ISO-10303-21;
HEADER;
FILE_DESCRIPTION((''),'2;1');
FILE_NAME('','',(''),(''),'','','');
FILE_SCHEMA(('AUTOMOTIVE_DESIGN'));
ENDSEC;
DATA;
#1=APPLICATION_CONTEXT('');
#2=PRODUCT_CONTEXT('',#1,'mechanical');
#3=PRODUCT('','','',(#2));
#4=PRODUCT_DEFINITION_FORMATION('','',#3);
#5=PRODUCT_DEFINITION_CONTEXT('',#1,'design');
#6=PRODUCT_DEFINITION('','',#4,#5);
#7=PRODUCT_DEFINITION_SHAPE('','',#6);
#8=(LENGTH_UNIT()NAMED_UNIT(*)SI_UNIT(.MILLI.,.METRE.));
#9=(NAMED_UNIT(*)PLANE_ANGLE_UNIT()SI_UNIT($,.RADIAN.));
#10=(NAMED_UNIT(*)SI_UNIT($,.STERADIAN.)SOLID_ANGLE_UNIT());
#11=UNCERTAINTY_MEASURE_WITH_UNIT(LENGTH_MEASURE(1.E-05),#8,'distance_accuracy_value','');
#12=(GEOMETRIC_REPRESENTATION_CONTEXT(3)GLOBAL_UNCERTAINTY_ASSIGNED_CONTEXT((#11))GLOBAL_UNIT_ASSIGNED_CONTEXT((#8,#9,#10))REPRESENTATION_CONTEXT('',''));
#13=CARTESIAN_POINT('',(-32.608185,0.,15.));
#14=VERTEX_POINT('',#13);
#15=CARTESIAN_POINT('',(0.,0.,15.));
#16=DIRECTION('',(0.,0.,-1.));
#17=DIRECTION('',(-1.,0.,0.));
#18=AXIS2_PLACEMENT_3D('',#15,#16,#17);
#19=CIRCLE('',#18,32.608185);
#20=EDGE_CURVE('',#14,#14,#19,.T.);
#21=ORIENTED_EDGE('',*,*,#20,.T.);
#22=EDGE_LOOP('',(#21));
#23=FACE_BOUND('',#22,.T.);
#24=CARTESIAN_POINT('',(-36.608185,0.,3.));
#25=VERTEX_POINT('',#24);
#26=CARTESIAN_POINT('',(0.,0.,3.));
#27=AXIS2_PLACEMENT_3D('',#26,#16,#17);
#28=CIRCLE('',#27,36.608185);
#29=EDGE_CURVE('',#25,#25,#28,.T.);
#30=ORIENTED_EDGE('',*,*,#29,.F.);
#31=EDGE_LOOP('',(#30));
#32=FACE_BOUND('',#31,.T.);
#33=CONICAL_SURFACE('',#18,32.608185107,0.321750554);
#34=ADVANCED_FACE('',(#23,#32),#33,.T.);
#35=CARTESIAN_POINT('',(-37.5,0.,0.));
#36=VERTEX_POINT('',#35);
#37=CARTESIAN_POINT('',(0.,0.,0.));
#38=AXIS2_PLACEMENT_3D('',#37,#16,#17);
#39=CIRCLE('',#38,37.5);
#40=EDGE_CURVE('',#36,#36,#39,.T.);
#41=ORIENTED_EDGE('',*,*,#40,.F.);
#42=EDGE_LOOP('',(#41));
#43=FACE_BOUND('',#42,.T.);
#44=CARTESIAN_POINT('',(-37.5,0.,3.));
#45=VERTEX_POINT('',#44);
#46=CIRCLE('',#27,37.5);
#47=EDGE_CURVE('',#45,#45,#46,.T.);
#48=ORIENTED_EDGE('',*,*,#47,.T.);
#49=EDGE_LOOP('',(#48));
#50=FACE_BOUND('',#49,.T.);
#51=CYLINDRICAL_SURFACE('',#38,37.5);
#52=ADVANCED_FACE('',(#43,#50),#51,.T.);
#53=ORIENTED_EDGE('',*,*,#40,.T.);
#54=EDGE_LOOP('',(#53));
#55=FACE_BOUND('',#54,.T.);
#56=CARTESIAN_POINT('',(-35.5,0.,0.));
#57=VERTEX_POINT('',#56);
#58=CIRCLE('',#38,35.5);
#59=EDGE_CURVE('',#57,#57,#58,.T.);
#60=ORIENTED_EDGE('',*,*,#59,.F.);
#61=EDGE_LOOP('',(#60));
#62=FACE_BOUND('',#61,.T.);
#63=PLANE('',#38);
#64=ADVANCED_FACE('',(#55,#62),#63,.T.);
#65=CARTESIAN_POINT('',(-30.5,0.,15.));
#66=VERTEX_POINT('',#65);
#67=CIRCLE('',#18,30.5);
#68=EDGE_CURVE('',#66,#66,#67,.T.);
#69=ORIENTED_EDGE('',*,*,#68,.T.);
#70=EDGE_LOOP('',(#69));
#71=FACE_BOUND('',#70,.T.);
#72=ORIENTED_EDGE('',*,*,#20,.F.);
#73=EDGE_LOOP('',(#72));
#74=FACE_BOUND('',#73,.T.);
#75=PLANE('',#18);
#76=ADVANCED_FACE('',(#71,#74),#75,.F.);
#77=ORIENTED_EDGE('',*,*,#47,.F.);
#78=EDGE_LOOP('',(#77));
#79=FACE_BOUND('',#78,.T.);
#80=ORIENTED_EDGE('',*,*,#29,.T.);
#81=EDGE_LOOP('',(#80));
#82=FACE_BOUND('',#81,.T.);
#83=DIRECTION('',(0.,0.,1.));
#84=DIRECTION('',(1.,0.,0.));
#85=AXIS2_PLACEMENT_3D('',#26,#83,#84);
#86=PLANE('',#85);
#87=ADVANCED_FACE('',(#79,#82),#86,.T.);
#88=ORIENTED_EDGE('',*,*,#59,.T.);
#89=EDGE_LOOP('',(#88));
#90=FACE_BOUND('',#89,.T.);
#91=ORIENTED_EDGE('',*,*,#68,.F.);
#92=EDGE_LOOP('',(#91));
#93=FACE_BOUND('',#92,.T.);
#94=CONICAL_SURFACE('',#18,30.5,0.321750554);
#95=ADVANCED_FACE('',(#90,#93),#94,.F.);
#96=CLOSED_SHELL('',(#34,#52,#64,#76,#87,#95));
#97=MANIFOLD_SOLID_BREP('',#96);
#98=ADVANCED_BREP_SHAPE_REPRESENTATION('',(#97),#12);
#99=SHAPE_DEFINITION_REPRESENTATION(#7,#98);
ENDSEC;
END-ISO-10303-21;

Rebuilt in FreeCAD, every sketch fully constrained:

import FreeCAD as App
import Part
import Sketcher
Q = App.Units.Quantity


def add_polygon(sketch, points):
    """Adds a closed chain of lines whose ends are joined by coincident constraints."""
    first, n = sketch.GeometryCount, len(points)
    for a, b in zip(points, points[1:] + points[:1]):
        sketch.addGeometry(Part.LineSegment(App.Vector(*a, 0), App.Vector(*b, 0)), False)
    for i in range(n):
        sketch.addConstraint(Sketcher.Constraint("Coincident", first + i, 2, first + (i + 1) % n, 1))

doc = App.newDocument("Part")
params = doc.addObject("Spreadsheet::Sheet", "Params")
for row, (alias, value) in enumerate([
    ("sketch1_width", "2 mm"),
    ("sketch1_height", "3 mm"),
    ("revolution_angle", "360 deg"),
], start=1):
    params.set(f"A{row}", alias)
    params.set(f"B{row}", "=" + value)
    params.setAlias(f"B{row}", alias)

body = doc.addObject("PartDesign::Body", "Body")

sketch1 = doc.addObject("Sketcher::SketchObject", "Sketch")
body.addObject(sketch1)
sketch1.AttachmentSupport = (doc.XZ_Plane, [""])
sketch1.MapMode = "FlatFace"
add_polygon(sketch1, [(37.5, 3), (37.5, 0), (35.5, 0), (30.5, 15), (32.6, 15), (36.6, 3)])
sketch1.addConstraint([
    Sketcher.Constraint("Vertical", 0),
    Sketcher.Constraint("Horizontal", 1),
    Sketcher.Constraint("Horizontal", 3),
    Sketcher.Constraint("Horizontal", 5),
    Sketcher.Constraint("PointOnObject", 0, 2, -1),
    Sketcher.Constraint("Parallel", 2, 4),
    Sketcher.Constraint("DistanceX", 1, 2, 1, 1, Q("2 mm")),
    Sketcher.Constraint("DistanceY", 0, 2, 0, 1, Q("3 mm")),
    Sketcher.Constraint("DistanceY", -1, 1, 2, 2, Q("15 mm")),
    Sketcher.Constraint("DistanceX", 2, 2, 1, 2, Q("5 mm")),
    Sketcher.Constraint("DistanceX", -1, 1, 0, 2, Q("37.5 mm")),
    Sketcher.Constraint("DistanceX", 3, 1, 3, 2, Q("2.108185 mm")),
])
sketch1.setExpression("Constraints[12]", "Params.sketch1_width")
sketch1.setExpression("Constraints[13]", "Params.sketch1_height")
revolution = doc.addObject("PartDesign::Revolution", "Revolution")
body.addObject(revolution)
revolution.Profile = sketch1
revolution.ReferenceAxis = (sketch1, ["V_Axis"])
revolution.setExpression("Angle", "Params.revolution_angle")

doc.recompute()
